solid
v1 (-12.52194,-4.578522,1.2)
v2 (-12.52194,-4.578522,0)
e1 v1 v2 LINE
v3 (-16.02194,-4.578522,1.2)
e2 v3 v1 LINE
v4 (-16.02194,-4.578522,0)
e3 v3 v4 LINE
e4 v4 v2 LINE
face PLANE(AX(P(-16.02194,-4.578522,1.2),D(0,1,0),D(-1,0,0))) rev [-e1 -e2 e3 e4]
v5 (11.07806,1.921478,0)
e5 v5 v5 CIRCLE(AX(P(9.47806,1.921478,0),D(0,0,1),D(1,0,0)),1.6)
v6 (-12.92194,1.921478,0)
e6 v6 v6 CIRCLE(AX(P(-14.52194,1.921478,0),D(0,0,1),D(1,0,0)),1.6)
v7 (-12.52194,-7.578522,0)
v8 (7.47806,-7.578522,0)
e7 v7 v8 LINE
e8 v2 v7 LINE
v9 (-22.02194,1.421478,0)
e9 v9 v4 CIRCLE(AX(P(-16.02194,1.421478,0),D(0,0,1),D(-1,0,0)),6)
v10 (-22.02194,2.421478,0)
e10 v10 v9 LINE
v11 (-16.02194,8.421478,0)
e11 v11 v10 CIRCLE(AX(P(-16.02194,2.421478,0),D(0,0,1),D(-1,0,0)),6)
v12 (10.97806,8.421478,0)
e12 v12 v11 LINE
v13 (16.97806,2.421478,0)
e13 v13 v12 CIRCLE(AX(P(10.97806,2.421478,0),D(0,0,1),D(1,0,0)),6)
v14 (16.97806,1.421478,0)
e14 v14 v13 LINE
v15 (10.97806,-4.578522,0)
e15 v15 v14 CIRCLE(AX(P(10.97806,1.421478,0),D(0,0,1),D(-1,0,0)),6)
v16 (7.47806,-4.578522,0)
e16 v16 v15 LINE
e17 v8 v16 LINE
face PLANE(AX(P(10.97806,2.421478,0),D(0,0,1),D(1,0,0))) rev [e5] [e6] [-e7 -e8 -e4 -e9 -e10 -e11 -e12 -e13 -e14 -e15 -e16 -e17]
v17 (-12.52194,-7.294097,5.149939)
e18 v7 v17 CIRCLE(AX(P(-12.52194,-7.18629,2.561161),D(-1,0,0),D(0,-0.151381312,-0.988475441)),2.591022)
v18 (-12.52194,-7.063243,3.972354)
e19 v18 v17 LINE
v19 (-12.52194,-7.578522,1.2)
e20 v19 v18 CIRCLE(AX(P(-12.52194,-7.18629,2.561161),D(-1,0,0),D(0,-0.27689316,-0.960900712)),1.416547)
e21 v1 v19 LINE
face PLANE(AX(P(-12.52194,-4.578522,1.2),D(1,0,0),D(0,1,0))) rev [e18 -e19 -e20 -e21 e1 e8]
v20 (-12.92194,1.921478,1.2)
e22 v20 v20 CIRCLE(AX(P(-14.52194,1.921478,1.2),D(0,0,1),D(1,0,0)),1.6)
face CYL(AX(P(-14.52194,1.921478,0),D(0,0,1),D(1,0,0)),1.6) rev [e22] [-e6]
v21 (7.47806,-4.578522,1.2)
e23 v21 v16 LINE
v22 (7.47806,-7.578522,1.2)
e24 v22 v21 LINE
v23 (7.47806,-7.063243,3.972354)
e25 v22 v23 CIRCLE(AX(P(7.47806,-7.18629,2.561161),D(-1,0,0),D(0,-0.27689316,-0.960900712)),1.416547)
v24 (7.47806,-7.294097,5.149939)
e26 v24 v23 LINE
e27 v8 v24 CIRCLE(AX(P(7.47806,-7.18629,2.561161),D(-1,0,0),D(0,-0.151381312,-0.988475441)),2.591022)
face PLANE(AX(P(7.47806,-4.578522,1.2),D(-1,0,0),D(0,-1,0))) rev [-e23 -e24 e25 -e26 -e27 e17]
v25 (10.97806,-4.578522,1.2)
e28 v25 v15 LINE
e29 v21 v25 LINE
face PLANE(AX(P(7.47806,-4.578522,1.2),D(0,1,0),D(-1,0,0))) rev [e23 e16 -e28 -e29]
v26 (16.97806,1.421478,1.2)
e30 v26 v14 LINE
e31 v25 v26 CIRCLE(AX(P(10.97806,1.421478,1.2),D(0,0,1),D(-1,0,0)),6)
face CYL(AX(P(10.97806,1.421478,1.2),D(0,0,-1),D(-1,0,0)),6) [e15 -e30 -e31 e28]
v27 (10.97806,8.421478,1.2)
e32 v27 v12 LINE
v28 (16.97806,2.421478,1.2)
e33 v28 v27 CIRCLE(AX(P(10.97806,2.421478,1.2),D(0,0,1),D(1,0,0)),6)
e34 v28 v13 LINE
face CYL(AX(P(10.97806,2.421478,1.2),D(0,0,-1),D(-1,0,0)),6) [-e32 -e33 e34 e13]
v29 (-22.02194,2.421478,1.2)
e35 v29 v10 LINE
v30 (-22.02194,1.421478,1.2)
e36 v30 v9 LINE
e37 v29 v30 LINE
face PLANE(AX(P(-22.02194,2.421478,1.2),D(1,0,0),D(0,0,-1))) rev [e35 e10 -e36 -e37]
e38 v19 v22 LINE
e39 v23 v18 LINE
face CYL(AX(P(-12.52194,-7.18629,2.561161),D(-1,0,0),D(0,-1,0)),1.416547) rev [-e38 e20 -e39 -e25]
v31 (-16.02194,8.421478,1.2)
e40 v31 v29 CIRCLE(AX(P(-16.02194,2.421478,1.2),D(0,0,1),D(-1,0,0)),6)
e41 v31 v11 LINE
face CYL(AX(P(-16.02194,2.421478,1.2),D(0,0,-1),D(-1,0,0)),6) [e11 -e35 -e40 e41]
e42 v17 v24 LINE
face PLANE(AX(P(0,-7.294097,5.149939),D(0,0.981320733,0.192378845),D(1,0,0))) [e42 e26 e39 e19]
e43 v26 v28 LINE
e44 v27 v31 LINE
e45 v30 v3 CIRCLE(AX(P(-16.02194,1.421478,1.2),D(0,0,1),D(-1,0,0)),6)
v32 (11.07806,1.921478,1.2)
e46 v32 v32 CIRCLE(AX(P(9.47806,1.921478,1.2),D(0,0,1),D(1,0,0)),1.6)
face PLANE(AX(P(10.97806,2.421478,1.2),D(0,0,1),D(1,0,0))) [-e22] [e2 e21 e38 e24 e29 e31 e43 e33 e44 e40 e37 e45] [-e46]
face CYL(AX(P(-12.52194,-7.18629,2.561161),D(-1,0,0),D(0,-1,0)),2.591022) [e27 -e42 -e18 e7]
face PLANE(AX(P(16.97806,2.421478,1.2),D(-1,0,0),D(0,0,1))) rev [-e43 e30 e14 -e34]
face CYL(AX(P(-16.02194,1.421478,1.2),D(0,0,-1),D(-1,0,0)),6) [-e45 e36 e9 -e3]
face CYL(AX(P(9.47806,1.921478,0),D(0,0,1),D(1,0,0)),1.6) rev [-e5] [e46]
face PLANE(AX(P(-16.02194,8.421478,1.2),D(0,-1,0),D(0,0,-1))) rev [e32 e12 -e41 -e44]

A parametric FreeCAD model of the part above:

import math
import FreeCAD as App
import Part
import Sketcher
Q = App.Units.Quantity

doc = App.newDocument("Part")
body = doc.addObject("PartDesign::Body", "Body")

# Sketch on XY plane
sketch1 = doc.addObject("Sketcher::SketchObject", "Sketch")
body.addObject(sketch1)
sketch1.AttachmentSupport = (doc.XY_Plane, [""])
sketch1.MapMode = "FlatFace"
sketch1.addGeometry(Part.LineSegment(App.Vector(7.5, -4.6, 0), App.Vector(11, -4.6, 0)), False)
sketch1.addGeometry(Part.ArcOfCircle(Part.Circle(App.Vector(11, 1.4, 0), App.Vector(0, 0, 1), 6), math.radians(-90), math.radians(0)), False)
sketch1.addGeometry(Part.LineSegment(App.Vector(17, 1.4, 0), App.Vector(17, 2.4, 0)), False)
sketch1.addGeometry(Part.ArcOfCircle(Part.Circle(App.Vector(11, 2.4, 0), App.Vector(0, 0, 1), 6), math.radians(0), math.radians(90)), False)
sketch1.addGeometry(Part.LineSegment(App.Vector(11, 8.4, 0), App.Vector(-16, 8.4, 0)), False)
sketch1.addGeometry(Part.ArcOfCircle(Part.Circle(App.Vector(-16, 2.4, 0), App.Vector(0, 0, 1), 6), math.radians(90), math.radians(180)), False)
sketch1.addGeometry(Part.LineSegment(App.Vector(-22, 2.4, 0), App.Vector(-22, 1.4, 0)), False)
sketch1.addGeometry(Part.ArcOfCircle(Part.Circle(App.Vector(-16, 1.4, 0), App.Vector(0, 0, 1), 6), math.radians(180), math.radians(270)), False)
sketch1.addGeometry(Part.LineSegment(App.Vector(-16, -4.6, 0), App.Vector(-12.5, -4.6, 0)), False)
sketch1.addGeometry(Part.LineSegment(App.Vector(-12.5, -4.6, 0), App.Vector(-12.5, -7.6, 0)), False)
sketch1.addGeometry(Part.LineSegment(App.Vector(-12.5, -7.6, 0), App.Vector(7.5, -7.6, 0)), False)
sketch1.addGeometry(Part.LineSegment(App.Vector(7.5, -7.6, 0), App.Vector(7.5, -4.6, 0)), False)
sketch1.addConstraint(Sketcher.Constraint("Tangent", 0, 2, 1, 1))
sketch1.addConstraint(Sketcher.Constraint("Tangent", 1, 2, 2, 1))
sketch1.addConstraint(Sketcher.Constraint("Tangent", 2, 2, 3, 1))
sketch1.addConstraint(Sketcher.Constraint("Tangent", 3, 2, 4, 1))
sketch1.addConstraint(Sketcher.Constraint("Tangent", 4, 2, 5, 1))
sketch1.addConstraint(Sketcher.Constraint("Tangent", 5, 2, 6, 1))
sketch1.addConstraint(Sketcher.Constraint("Tangent", 6, 2, 7, 1))
sketch1.addConstraint(Sketcher.Constraint("Tangent", 7, 2, 8, 1))
sketch1.addConstraint(Sketcher.Constraint("Coincident", 8, 2, 9, 1))
sketch1.addConstraint(Sketcher.Constraint("Coincident", 9, 2, 10, 1))
sketch1.addConstraint(Sketcher.Constraint("Coincident", 10, 2, 11, 1))
sketch1.addConstraint(Sketcher.Constraint("Coincident", 11, 2, 0, 1))
sketch1.addConstraint(Sketcher.Constraint("Horizontal", 0))
sketch1.addConstraint(Sketcher.Constraint("Vertical", 2))
sketch1.addConstraint(Sketcher.Constraint("Horizontal", 4))
sketch1.addConstraint(Sketcher.Constraint("Vertical", 6))
sketch1.addConstraint(Sketcher.Constraint("Horizontal", 8))
sketch1.addConstraint(Sketcher.Constraint("Vertical", 9))
sketch1.addConstraint(Sketcher.Constraint("Horizontal", 10))
sketch1.addConstraint(Sketcher.Constraint("Vertical", 11))
sketch1.addConstraint(Sketcher.Constraint("Equal", 1, 3))
sketch1.addConstraint(Sketcher.Constraint("Equal", 3, 5))
sketch1.addConstraint(Sketcher.Constraint("Equal", 5, 7))
sketch1.addConstraint(Sketcher.Constraint("Horizontal", 1, 3, 7, 3))
sketch1.addConstraint(Sketcher.Constraint("Equal", 0, 8))
sketch1.addConstraint(Sketcher.Constraint("Radius", 1, Q("6 mm")))
sketch1.addConstraint(Sketcher.Constraint("DistanceX", 4, 2, 4, 1, Q("27 mm")))
sketch1.addConstraint(Sketcher.Constraint("DistanceX", 10, 1, 10, 2, Q("20 mm")))
sketch1.addConstraint(Sketcher.Constraint("DistanceY", 2, 1, 2, 2, Q("1 mm")))
sketch1.addConstraint(Sketcher.Constraint("DistanceY", 9, 2, 9, 1, Q("3 mm")))
sketch1.addConstraint(Sketcher.Constraint("DistanceX", -1, 1, 1, 3, Q("10.97806 mm")))
sketch1.addConstraint(Sketcher.Constraint("DistanceY", -1, 1, 1, 3, Q("1.421478 mm")))
pad1 = doc.addObject("PartDesign::Pad", "Pad")
body.addObject(pad1)
pad1.Profile = sketch1
pad1.Length = 1.2

# Sketch on XY plane
sketch2 = doc.addObject("Sketcher::SketchObject", "Sketch001")
body.addObject(sketch2)
sketch2.AttachmentSupport = (doc.XY_Plane, [""])
sketch2.MapMode = "FlatFace"
sketch2.AttachmentOffset = App.Placement(App.Vector(0, 0, 1.2), App.Rotation())
sketch2.addGeometry(Part.Circle(App.Vector(-14.5, 1.9, 0), App.Vector(0, 0, 1), 1.6), False)
sketch2.addGeometry(Part.Circle(App.Vector(9.5, 1.9, 0), App.Vector(0, 0, 1), 1.6), False)
sketch2.addConstraint(Sketcher.Constraint("Equal", 0, 1))
sketch2.addConstraint(Sketcher.Constraint("Horizontal", 0, 3, 1, 3))
sketch2.addConstraint(Sketcher.Constraint("Diameter", 0, Q("3.2 mm")))
sketch2.addConstraint(Sketcher.Constraint("DistanceX", 0, 3, 1, 3, Q("24 mm")))
sketch2.addConstraint(Sketcher.Constraint("DistanceX", 0, 3, -1, 1, Q("14.52194 mm")))
sketch2.addConstraint(Sketcher.Constraint("DistanceY", -1, 1, 0, 3, Q("1.921478 mm")))
pocket1 = doc.addObject("PartDesign::Pocket", "Pocket")
body.addObject(pocket1)
pocket1.Profile = sketch2
pocket1.Length = 1.2

# Sketch on XZ plane
sketch3 = doc.addObject("Sketcher::SketchObject", "Sketch002")
body.addObject(sketch3)
sketch3.AttachmentSupport = (doc.XZ_Plane, [""])
sketch3.MapMode = "FlatFace"
sketch3.AttachmentOffset = App.Placement(App.Vector(0, 0, 7.578522), App.Rotation())
sketch3.addGeometry(Part.LineSegment(App.Vector(-12.5, 1.2, 0), App.Vector(-12.5, 0, 0)), False)
sketch3.addGeometry(Part.LineSegment(App.Vector(-12.5, 0, 0), App.Vector(7.5, 0, 0)), False)
sketch3.addGeometry(Part.LineSegment(App.Vector(7.5, 0, 0), App.Vector(7.5, 1.2, 0)), False)
sketch3.addGeometry(Part.LineSegment(App.Vector(7.5, 1.2, 0), App.Vector(-12.5, 1.2, 0)), False)
sketch3.addConstraint(Sketcher.Constraint("Coincident", 0, 2, 1, 1))
sketch3.addConstraint(Sketcher.Constraint("Coincident", 1, 2, 2, 1))
sketch3.addConstraint(Sketcher.Constraint("Coincident", 2, 2, 3, 1))
sketch3.addConstraint(Sketcher.Constraint("Coincident", 3, 2, 0, 1))
sketch3.addConstraint(Sketcher.Constraint("Vertical", 0))
sketch3.addConstraint(Sketcher.Constraint("Horizontal", 1))
sketch3.addConstraint(Sketcher.Constraint("Vertical", 2))
sketch3.addConstraint(Sketcher.Constraint("Horizontal", 3))
sketch3.addConstraint(Sketcher.Constraint("PointOnObject", 0, 2, -1))
sketch3.addConstraint(Sketcher.Constraint("DistanceX", 1, 1, 1, 2, Q("20 mm")))
sketch3.addConstraint(Sketcher.Constraint("DistanceY", 0, 2, 0, 1, Q("1.2 mm")))
sketch3.addConstraint(Sketcher.Constraint("DistanceX", 0, 2, -1, 1, Q("12.52194 mm")))

# Sketch on YZ plane
sketch4 = doc.addObject("Sketcher::SketchObject", "Sketch003")
body.addObject(sketch4)
sketch4.AttachmentSupport = (doc.YZ_Plane, [""])
sketch4.MapMode = "FlatFace"
sketch4.AttachmentOffset = App.Placement(App.Vector(0, 0, -12.52194), App.Rotation())
sketch4.addGeometry(Part.ArcOfCircle(Part.Circle(App.Vector(-7.2, 2.6, 0), App.Vector(0, 0, 1), 2), math.radians(90), math.radians(259)), False)
sketch4.addConstraint(Sketcher.Constraint("Radius", 0, Q("2 mm")))
sketch4.addConstraint(Sketcher.Constraint("DistanceY", -1, 1, 0, 2, Q("0.6 mm")))
sketch4.addConstraint(Sketcher.Constraint("DistanceX", 0, 3, -1, 1, Q("7.18629 mm")))
sketch4.addConstraint(Sketcher.Constraint("DistanceY", -1, 1, 0, 3, Q("2.561161 mm")))
sketch4.addConstraint(Sketcher.Constraint("DistanceX", 0, 1, -1, 1, Q("7.17867 mm")))
doc.recompute()

additivepipe = doc.addObject("PartDesign::AdditivePipe", "AdditivePipe")
body.addObject(additivepipe)
additivepipe.Profile = sketch3
additivepipe.Spine = (sketch4, ["Edge1"])

doc.recompute()
